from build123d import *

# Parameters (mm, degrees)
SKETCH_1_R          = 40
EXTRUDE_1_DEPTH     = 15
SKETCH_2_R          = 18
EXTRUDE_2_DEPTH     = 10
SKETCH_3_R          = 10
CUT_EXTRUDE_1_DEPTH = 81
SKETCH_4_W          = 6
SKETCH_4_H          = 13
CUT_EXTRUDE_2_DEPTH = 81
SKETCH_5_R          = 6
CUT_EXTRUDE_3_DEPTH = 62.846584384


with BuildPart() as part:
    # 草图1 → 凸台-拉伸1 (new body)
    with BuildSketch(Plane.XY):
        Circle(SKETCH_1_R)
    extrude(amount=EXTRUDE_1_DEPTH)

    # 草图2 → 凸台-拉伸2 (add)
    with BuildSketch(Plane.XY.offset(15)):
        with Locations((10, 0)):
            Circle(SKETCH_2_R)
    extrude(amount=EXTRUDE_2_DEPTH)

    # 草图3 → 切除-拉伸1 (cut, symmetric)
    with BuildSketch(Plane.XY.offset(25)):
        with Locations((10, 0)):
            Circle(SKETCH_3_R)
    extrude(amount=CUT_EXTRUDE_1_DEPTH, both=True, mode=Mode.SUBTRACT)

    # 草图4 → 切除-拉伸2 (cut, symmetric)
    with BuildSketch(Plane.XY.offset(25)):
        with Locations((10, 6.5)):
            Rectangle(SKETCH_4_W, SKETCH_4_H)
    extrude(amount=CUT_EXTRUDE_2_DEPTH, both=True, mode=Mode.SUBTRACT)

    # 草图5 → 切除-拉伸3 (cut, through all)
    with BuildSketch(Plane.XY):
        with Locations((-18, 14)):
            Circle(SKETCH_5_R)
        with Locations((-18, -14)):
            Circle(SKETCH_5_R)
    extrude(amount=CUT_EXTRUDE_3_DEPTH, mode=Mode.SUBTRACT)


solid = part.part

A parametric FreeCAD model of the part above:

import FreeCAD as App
import Part
import Sketcher

doc = App.newDocument("Part")
body = doc.addObject("PartDesign::Body", "Body")

sketch1 = body.newObject("Sketcher::SketchObject", "Sketch")
sketch1.AttachmentSupport = (doc.getObject("XY_Plane"), [""])
sketch1.MapMode = "FlatFace"
sketch1.addGeometry(Part.Circle(App.Vector(0, 0, 0), App.Vector(0, 0, 1), 40), False)
sketch1.addConstraint([
    Sketcher.Constraint("Coincident", 0, 3, -1, 1),
    Sketcher.Constraint("Diameter", 0, 80.0),
])
pad1 = body.newObject("PartDesign::Pad", "Pad")
pad1.Profile = sketch1
pad1.Length = 15

sketch2 = body.newObject("Sketcher::SketchObject", "Sketch001")
sketch2.AttachmentSupport = (doc.getObject("XY_Plane"), [""])
sketch2.MapMode = "FlatFace"
sketch2.AttachmentOffset = App.Placement(App.Vector(0, 0, 15), App.Rotation())
sketch2.addGeometry(Part.Circle(App.Vector(10, 0, 0), App.Vector(0, 0, 1), 18), False)
sketch2.addConstraint([
    Sketcher.Constraint("PointOnObject", 0, 3, -1),
    Sketcher.Constraint("Diameter", 0, 36.0),
    Sketcher.Constraint("DistanceX", -1, 1, 0, 3, 10.0),
])
pad2 = body.newObject("PartDesign::Pad", "Pad001")
pad2.Profile = sketch2
pad2.Length = 10

sketch3 = body.newObject("Sketcher::SketchObject", "Sketch002")
sketch3.AttachmentSupport = (doc.getObject("XY_Plane"), [""])
sketch3.MapMode = "FlatFace"
sketch3.AttachmentOffset = App.Placement(App.Vector(0, 0, 25), App.Rotation())
sketch3.addGeometry(Part.Circle(App.Vector(10, 0, 0), App.Vector(0, 0, 1), 10), False)
sketch3.addConstraint([
    Sketcher.Constraint("PointOnObject", 0, 3, -1),
    Sketcher.Constraint("Diameter", 0, 20.0),
    Sketcher.Constraint("DistanceX", -1, 1, 0, 3, 10.0),
])
pocket1 = body.newObject("PartDesign::Pocket", "Pocket")
pocket1.Profile = sketch3
pocket1.Length = 162
pocket1.Midplane = True

sketch4 = body.newObject("Sketcher::SketchObject", "Sketch003")
sketch4.AttachmentSupport = (doc.getObject("XY_Plane"), [""])
sketch4.MapMode = "FlatFace"
sketch4.AttachmentOffset = App.Placement(App.Vector(0, 0, 25), App.Rotation())
sketch4.addGeometry([
    Part.LineSegment(App.Vector(7, 13, 0), App.Vector(7, 0, 0)),
    Part.LineSegment(App.Vector(7, 0, 0), App.Vector(13, 0, 0)),
    Part.LineSegment(App.Vector(13, 0, 0), App.Vector(13, 13, 0)),
    Part.LineSegment(App.Vector(13, 13, 0), App.Vector(7, 13, 0)),
], False)
sketch4.addConstraint([
    Sketcher.Constraint("Coincident", 0, 2, 1, 1),
    Sketcher.Constraint("Coincident", 1, 2, 2, 1),
    Sketcher.Constraint("Coincident", 2, 2, 3, 1),
    Sketcher.Constraint("Coincident", 3, 2, 0, 1),
    Sketcher.Constraint("Vertical", 0),
    Sketcher.Constraint("Horizontal", 1),
    Sketcher.Constraint("Vertical", 2),
    Sketcher.Constraint("Horizontal", 3),
    Sketcher.Constraint("PointOnObject", 0, 2, -1),
    Sketcher.Constraint("DistanceX", 1, 1, 1, 2, 6.0),
    Sketcher.Constraint("DistanceY", 0, 2, 0, 1, 13.0),
    Sketcher.Constraint("DistanceX", -1, 1, 0, 2, 7.0),
])
pocket2 = body.newObject("PartDesign::Pocket", "Pocket001")
pocket2.Profile = sketch4
pocket2.Length = 162
pocket2.Midplane = True

sketch5 = body.newObject("Sketcher::SketchObject", "Sketch004")
sketch5.AttachmentSupport = (doc.getObject("XY_Plane"), [""])
sketch5.MapMode = "FlatFace"
sketch5.addGeometry([
    Part.Circle(App.Vector(-18, 14, 0), App.Vector(0, 0, 1), 6),
    Part.Circle(App.Vector(-18, -14, 0), App.Vector(0, 0, 1), 6),
], False)
sketch5.addConstraint([
    Sketcher.Constraint("Equal", 0, 1),
    Sketcher.Constraint("Symmetric", 0, 3, 1, 3, -1),
    Sketcher.Constraint("Diameter", 0, 12.0),
    Sketcher.Constraint("DistanceX", 0, 3, -1, 1, 18.0),
    Sketcher.Constraint("DistanceY", -1, 1, 0, 3, 14.0),
])
pocket3 = body.newObject("PartDesign::Pocket", "Pocket002")
pocket3.Profile = sketch5
pocket3.Type = "ThroughAll"
pocket3.Reversed = True

doc.recompute()
